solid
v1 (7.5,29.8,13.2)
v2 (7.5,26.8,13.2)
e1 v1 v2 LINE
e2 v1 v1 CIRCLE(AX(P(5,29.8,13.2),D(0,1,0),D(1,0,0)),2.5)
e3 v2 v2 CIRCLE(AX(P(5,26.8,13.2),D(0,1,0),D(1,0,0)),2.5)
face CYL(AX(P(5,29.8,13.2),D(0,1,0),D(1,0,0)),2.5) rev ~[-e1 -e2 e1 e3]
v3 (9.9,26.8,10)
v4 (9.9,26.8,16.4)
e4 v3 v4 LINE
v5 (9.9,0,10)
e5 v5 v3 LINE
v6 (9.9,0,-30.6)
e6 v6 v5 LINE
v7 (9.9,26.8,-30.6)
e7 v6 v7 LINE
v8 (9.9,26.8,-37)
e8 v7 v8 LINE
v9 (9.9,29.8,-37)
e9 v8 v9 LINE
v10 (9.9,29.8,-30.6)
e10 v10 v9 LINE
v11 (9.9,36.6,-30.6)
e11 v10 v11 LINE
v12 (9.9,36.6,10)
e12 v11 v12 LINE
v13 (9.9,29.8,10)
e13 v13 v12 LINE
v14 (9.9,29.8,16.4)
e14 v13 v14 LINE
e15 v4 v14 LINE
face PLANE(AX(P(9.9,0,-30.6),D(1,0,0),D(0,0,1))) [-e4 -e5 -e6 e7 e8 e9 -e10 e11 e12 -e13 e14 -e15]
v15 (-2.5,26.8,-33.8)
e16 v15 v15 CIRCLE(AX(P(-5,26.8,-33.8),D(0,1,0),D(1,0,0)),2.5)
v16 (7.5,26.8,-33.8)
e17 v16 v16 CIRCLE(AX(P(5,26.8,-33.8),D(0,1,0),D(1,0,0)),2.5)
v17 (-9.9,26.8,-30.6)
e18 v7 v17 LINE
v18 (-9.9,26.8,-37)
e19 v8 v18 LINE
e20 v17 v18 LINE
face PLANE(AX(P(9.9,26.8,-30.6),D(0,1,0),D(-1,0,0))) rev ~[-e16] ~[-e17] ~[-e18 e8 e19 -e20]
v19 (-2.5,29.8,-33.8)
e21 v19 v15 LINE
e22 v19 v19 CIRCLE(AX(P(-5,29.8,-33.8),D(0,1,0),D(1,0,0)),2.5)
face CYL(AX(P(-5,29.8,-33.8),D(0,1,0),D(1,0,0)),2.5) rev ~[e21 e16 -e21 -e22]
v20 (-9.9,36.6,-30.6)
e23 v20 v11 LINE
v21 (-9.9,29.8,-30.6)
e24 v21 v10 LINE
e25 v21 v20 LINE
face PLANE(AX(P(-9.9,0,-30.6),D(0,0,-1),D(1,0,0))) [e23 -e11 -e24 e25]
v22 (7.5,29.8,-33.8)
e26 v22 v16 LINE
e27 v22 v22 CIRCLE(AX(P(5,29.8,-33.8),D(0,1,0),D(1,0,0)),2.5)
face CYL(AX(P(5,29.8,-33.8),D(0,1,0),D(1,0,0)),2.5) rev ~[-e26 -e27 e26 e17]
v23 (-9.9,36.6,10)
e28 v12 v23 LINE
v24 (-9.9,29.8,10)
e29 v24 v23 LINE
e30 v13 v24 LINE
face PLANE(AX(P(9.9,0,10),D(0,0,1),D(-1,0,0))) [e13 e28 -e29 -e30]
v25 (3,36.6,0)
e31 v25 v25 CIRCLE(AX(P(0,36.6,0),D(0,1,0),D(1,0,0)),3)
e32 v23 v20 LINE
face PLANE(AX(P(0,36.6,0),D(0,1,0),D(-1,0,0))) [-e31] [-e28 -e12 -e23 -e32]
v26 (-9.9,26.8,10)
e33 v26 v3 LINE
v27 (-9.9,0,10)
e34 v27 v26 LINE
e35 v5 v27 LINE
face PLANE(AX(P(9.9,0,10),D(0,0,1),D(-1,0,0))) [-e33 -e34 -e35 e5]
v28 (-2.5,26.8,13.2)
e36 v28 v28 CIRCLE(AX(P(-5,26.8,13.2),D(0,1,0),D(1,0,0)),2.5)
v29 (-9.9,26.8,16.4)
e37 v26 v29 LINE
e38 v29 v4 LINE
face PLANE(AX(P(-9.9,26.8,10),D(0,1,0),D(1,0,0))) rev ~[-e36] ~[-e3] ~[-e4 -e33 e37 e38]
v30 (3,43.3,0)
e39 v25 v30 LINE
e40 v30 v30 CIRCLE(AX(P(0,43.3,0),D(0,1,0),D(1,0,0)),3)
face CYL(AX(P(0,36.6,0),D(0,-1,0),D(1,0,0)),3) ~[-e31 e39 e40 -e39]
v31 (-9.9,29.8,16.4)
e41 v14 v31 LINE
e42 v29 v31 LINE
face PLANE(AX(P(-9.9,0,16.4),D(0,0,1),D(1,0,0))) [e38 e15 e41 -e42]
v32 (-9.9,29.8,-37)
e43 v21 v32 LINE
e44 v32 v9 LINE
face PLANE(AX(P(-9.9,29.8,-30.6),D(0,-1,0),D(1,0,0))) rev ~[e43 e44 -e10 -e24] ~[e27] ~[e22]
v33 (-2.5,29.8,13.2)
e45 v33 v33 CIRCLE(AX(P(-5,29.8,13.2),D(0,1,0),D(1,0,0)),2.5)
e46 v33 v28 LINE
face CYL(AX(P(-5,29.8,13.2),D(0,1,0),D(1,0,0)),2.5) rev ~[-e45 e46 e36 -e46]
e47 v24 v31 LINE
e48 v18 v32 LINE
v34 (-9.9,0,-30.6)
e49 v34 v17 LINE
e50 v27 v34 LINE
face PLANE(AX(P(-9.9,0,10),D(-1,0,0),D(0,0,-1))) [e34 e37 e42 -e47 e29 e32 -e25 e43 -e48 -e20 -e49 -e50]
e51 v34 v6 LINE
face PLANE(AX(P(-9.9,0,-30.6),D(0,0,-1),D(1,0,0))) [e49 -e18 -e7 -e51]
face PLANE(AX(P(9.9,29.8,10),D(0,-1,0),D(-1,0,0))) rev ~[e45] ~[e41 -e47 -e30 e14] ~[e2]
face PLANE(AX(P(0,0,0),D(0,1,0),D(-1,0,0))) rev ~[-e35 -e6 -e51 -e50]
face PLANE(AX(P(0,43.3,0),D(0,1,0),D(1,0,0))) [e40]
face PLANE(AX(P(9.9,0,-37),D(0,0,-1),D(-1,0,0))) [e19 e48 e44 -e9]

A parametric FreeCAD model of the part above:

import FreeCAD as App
import Part
import Sketcher

doc = App.newDocument("Part")
body = doc.addObject("PartDesign::Body", "Body")

sketch1 = doc.addObject("Sketcher::SketchObject", "Sketch")
body.addObject(sketch1)
sketch1.AttachmentSupport = (doc.XZ_Plane, [""])
sketch1.MapMode = "FlatFace"
sketch1.addGeometry([
    Part.LineSegment(App.Vector(-10, 10, 0), App.Vector(10, 10, 0)),
    Part.LineSegment(App.Vector(10, 10, 0), App.Vector(10, -31, 0)),
    Part.LineSegment(App.Vector(10, -31, 0), App.Vector(-10, -31, 0)),
    Part.LineSegment(App.Vector(-10, -31, 0), App.Vector(-10, 10, 0)),
], False)
sketch1.addConstraint([
    Sketcher.Constraint("Coincident", 0, 2, 1, 1),
    Sketcher.Constraint("Coincident", 1, 2, 2, 1),
    Sketcher.Constraint("Coincident", 2, 2, 3, 1),
    Sketcher.Constraint("Coincident", 3, 2, 0, 1),
    Sketcher.Constraint("Horizontal", 0),
    Sketcher.Constraint("Vertical", 1),
    Sketcher.Constraint("Horizontal", 2),
    Sketcher.Constraint("Vertical", 3),
    Sketcher.Constraint("DistanceX", 0, 1, 0, 2, 19.8),
    Sketcher.Constraint("DistanceY", 1, 2, 1, 1, 40.6),
    Sketcher.Constraint("DistanceY", -1, 1, 0, 2, 10.0),
    Sketcher.Constraint("DistanceX", -1, 1, 0, 2, 9.9),
])
pad1 = doc.addObject("PartDesign::Pad", "Pad")
body.addObject(pad1)
pad1.Profile = sketch1
pad1.Length = 36.6
pad1.Reversed = True

sketch2 = doc.addObject("Sketcher::SketchObject", "Sketch001")
body.addObject(sketch2)
sketch2.AttachmentSupport = (doc.XY_Plane, [""])
sketch2.MapMode = "FlatFace"
sketch2.AttachmentOffset = App.Placement(App.Vector(0, 0, 10), App.Rotation())
sketch2.addGeometry([
    Part.LineSegment(App.Vector(-9.9, 26.8, 0), App.Vector(9.9, 26.8, 0)),
    Part.LineSegment(App.Vector(9.9, 26.8, 0), App.Vector(9.9, 29.8, 0)),
    Part.LineSegment(App.Vector(9.9, 29.8, 0), App.Vector(-9.9, 29.8, 0)),
    Part.LineSegment(App.Vector(-9.9, 29.8, 0), App.Vector(-9.9, 26.8, 0)),
], False)
sketch2.addConstraint([
    Sketcher.Constraint("Coincident", 0, 2, 1, 1),
    Sketcher.Constraint("Coincident", 1, 2, 2, 1),
    Sketcher.Constraint("Coincident", 2, 2, 3, 1),
    Sketcher.Constraint("Coincident", 3, 2, 0, 1),
    Sketcher.Constraint("Horizontal", 0),
    Sketcher.Constraint("Vertical", 1),
    Sketcher.Constraint("Horizontal", 2),
    Sketcher.Constraint("Vertical", 3),
    Sketcher.Constraint("DistanceY", 1, 1, 1, 2, 3.0),
    Sketcher.Constraint("DistanceY", -1, 1, 0, 2, 26.8),
    Sketcher.Constraint("DistanceX", 0, 1, 0, 2, 19.8),
    Sketcher.Constraint("DistanceX", -1, 1, 0, 2, 9.9),
])
pad2 = doc.addObject("PartDesign::Pad", "Pad001")
body.addObject(pad2)
pad2.Profile = sketch2
pad2.Length = 6.4

sketch3 = doc.addObject("Sketcher::SketchObject", "Sketch002")
body.addObject(sketch3)
sketch3.AttachmentSupport = (doc.XY_Plane, [""])
sketch3.MapMode = "FlatFace"
sketch3.AttachmentOffset = App.Placement(App.Vector(0, 0, -30.6), App.Rotation())
sketch3.addGeometry([
    Part.LineSegment(App.Vector(9.9, 26.8, 0), App.Vector(-9.9, 26.8, 0)),
    Part.LineSegment(App.Vector(-9.9, 26.8, 0), App.Vector(-9.9, 29.8, 0)),
    Part.LineSegment(App.Vector(-9.9, 29.8, 0), App.Vector(9.9, 29.8, 0)),
    Part.LineSegment(App.Vector(9.9, 29.8, 0), App.Vector(9.9, 26.8, 0)),
], False)
sketch3.addConstraint([
    Sketcher.Constraint("Coincident", 0, 2, 1, 1),
    Sketcher.Constraint("Coincident", 1, 2, 2, 1),
    Sketcher.Constraint("Coincident", 2, 2, 3, 1),
    Sketcher.Constraint("Coincident", 3, 2, 0, 1),
    Sketcher.Constraint("Horizontal", 0),
    Sketcher.Constraint("Vertical", 1),
    Sketcher.Constraint("Horizontal", 2),
    Sketcher.Constraint("Vertical", 3),
    Sketcher.Constraint("DistanceY", 1, 1, 1, 2, 3.0),
    Sketcher.Constraint("DistanceY", -1, 1, 0, 2, 26.8),
    Sketcher.Constraint("DistanceX", 0, 2, 0, 1, 19.8),
    Sketcher.Constraint("DistanceX", 0, 2, -1, 1, 9.9),
])
pad3 = doc.addObject("PartDesign::Pad", "Pad002")
body.addObject(pad3)
pad3.Profile = sketch3
pad3.Length = 6.4
pad3.Reversed = True

sketch4 = doc.addObject("Sketcher::SketchObject", "Sketch003")
body.addObject(sketch4)
sketch4.AttachmentSupport = (doc.XZ_Plane, [""])
sketch4.MapMode = "FlatFace"
sketch4.AttachmentOffset = App.Placement(App.Vector(0, 0, -29.8), App.Rotation())
sketch4.addGeometry(Part.Circle(App.Vector(-5, 13.2, 0), App.Vector(0, 0, 1), 2.5), False)
sketch4.addConstraint([
    Sketcher.Constraint("Diameter", 0, 5.0),
    Sketcher.Constraint("DistanceX", 0, 3, -1, 1, 5.0),
    Sketcher.Constraint("DistanceY", -1, 1, 0, 3, 13.2),
])
pocket1 = doc.addObject("PartDesign::Pocket", "Pocket")
body.addObject(pocket1)
pocket1.Profile = sketch4
pocket1.Type = "UpToFirst"
pocket1.Reversed = True

sketch5 = doc.addObject("Sketcher::SketchObject", "Sketch004")
body.addObject(sketch5)
sketch5.AttachmentSupport = (doc.XZ_Plane, [""])
sketch5.MapMode = "FlatFace"
sketch5.AttachmentOffset = App.Placement(App.Vector(0, 0, -29.8), App.Rotation())
sketch5.addGeometry(Part.Circle(App.Vector(5, 13.2, 0), App.Vector(0, 0, 1), 2.5), False)
sketch5.addConstraint([
    Sketcher.Constraint("Diameter", 0, 5.0),
    Sketcher.Constraint("DistanceX", -1, 1, 0, 3, 5.0),
    Sketcher.Constraint("DistanceY", -1, 1, 0, 3, 13.2),
])
pocket2 = doc.addObject("PartDesign::Pocket", "Pocket001")
body.addObject(pocket2)
pocket2.Profile = sketch5
pocket2.Type = "UpToFirst"
pocket2.Reversed = True

sketch6 = doc.addObject("Sketcher::SketchObject", "Sketch005")
body.addObject(sketch6)
sketch6.AttachmentSupport = (doc.XZ_Plane, [""])
sketch6.MapMode = "FlatFace"
sketch6.AttachmentOffset = App.Placement(App.Vector(0, 0, -29.8), App.Rotation())
sketch6.addGeometry(Part.Circle(App.Vector(-5, -33.8, 0), App.Vector(0, 0, 1), 2.5), False)
sketch6.addConstraint([
    Sketcher.Constraint("Diameter", 0, 5.0),
    Sketcher.Constraint("DistanceX", 0, 3, -1, 1, 5.0),
    Sketcher.Constraint("DistanceY", 0, 3, -1, 1, 33.8),
])
pocket3 = doc.addObject("PartDesign::Pocket", "Pocket002")
body.addObject(pocket3)
pocket3.Profile = sketch6
pocket3.Type = "UpToFirst"
pocket3.Reversed = True

sketch7 = doc.addObject("Sketcher::SketchObject", "Sketch006")
body.addObject(sketch7)
sketch7.AttachmentSupport = (doc.XZ_Plane, [""])
sketch7.MapMode = "FlatFace"
sketch7.AttachmentOffset = App.Placement(App.Vector(0, 0, -29.8), App.Rotation())
sketch7.addGeometry(Part.Circle(App.Vector(5, -33.8, 0), App.Vector(0, 0, 1), 2.5), False)
sketch7.addConstraint([
    Sketcher.Constraint("Diameter", 0, 5.0),
    Sketcher.Constraint("DistanceX", -1, 1, 0, 3, 5.0),
    Sketcher.Constraint("DistanceY", 0, 3, -1, 1, 33.8),
])
pocket4 = doc.addObject("PartDesign::Pocket", "Pocket003")
body.addObject(pocket4)
pocket4.Profile = sketch7
pocket4.Type = "UpToFirst"
pocket4.Reversed = True

sketch8 = doc.addObject("Sketcher::SketchObject", "Sketch007")
body.addObject(sketch8)
sketch8.AttachmentSupport = (doc.XZ_Plane, [""])
sketch8.MapMode = "FlatFace"
sketch8.AttachmentOffset = App.Placement(App.Vector(0, 0, -36.6), App.Rotation())
sketch8.addGeometry(Part.Circle(App.Vector(0, 0, 0), App.Vector(0, 0, 1), 3), False)
sketch8.addConstraint([
    Sketcher.Constraint("Coincident", 0, 3, -1, 1),
    Sketcher.Constraint("Diameter", 0, 6.0),
])
pad4 = doc.addObject("PartDesign::Pad", "Pad003")
body.addObject(pad4)
pad4.Profile = sketch8
pad4.Length = 6.7
pad4.Reversed = True

doc.recompute()
